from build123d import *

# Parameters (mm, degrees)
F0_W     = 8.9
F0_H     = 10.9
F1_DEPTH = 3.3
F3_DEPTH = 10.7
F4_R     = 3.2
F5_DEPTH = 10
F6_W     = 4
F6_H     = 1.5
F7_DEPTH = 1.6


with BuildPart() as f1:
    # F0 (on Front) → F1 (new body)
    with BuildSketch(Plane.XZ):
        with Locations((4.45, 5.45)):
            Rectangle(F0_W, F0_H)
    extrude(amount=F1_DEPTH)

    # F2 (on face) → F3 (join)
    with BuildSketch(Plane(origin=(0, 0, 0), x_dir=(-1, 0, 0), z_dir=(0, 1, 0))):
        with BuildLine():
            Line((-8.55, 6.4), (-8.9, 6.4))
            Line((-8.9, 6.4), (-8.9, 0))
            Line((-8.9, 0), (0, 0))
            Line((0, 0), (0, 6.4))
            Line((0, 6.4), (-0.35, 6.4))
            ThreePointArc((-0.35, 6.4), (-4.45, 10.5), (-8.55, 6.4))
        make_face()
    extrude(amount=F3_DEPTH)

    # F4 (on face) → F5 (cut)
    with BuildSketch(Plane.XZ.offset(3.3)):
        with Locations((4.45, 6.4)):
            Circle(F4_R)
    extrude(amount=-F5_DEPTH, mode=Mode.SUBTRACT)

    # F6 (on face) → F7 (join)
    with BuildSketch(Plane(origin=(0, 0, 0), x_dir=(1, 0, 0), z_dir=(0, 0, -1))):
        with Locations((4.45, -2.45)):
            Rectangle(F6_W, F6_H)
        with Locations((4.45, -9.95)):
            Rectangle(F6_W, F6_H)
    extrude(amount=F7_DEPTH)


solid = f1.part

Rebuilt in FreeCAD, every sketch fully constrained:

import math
import FreeCAD as App
import Part
import Sketcher

V = App.Vector


def add_polygon(sketch, points):
    """Adds a closed chain of lines whose ends are joined by coincident constraints."""
    first, n = sketch.GeometryCount, len(points)
    for a, b in zip(points, points[1:] + points[:1]):
        sketch.addGeometry(Part.LineSegment(App.Vector(*a, 0), App.Vector(*b, 0)), False)
    for i in range(n):
        sketch.addConstraint(Sketcher.Constraint("Coincident", first + i, 2, first + (i + 1) % n, 1))

doc = App.newDocument("Part")
body = doc.addObject("PartDesign::Body", "Body")

sketch1 = body.newObject("Sketcher::SketchObject", "Sketch")
sketch1.AttachmentSupport = (doc.getObject("XZ_Plane"), [""])
sketch1.MapMode = "FlatFace"
add_polygon(sketch1, [(0, 11), (0, 0), (9, 0), (9, 11)])
sketch1.addConstraint([
    Sketcher.Constraint("Vertical", 0),
    Sketcher.Constraint("Horizontal", 1),
    Sketcher.Constraint("Vertical", 2),
    Sketcher.Constraint("Horizontal", 3),
    Sketcher.Constraint("Coincident", 0, 2, -1, 1),
    Sketcher.Constraint("DistanceX", 1, 1, 1, 2, 8.9),
    Sketcher.Constraint("DistanceY", 0, 2, 0, 1, 10.9),
])
pad1 = body.newObject("PartDesign::Pad", "Pad")
pad1.Profile = sketch1
pad1.Length = 3.3

sketch2 = body.newObject("Sketcher::SketchObject", "Sketch001")
sketch2.AttachmentSupport = (doc.getObject("XZ_Plane"), [""])
sketch2.MapMode = "FlatFace"
sketch2.addGeometry([
    Part.LineSegment(V(8.55, 6.4, 0), V(8.9, 6.4, 0)),
    Part.LineSegment(V(8.9, 6.4, 0), V(8.9, 0, 0)),
    Part.LineSegment(V(8.9, 0, 0), V(0, 0, 0)),
    Part.LineSegment(V(0, 0, 0), V(0, 6.4, 0)),
    Part.LineSegment(V(0, 6.4, 0), V(0.35, 6.4, 0)),
    Part.ArcOfCircle(Part.Circle(V(4.45, 6.4, 0), V(0, 0, 1), 4.1), math.radians(0), math.radians(180)),
], False)
sketch2.addConstraint([
    Sketcher.Constraint("Coincident", 0, 2, 1, 1),
    Sketcher.Constraint("Coincident", 1, 2, 2, 1),
    Sketcher.Constraint("Coincident", 2, 2, 3, 1),
    Sketcher.Constraint("Coincident", 3, 2, 4, 1),
    Sketcher.Constraint("Coincident", 4, 2, 5, 2),
    Sketcher.Constraint("Coincident", 5, 1, 0, 1),
    Sketcher.Constraint("Horizontal", 0),
    Sketcher.Constraint("Vertical", 1),
    Sketcher.Constraint("Horizontal", 2),
    Sketcher.Constraint("Vertical", 3),
    Sketcher.Constraint("Horizontal", 4),
    Sketcher.Constraint("Coincident", 2, 2, -1, 1),
    Sketcher.Constraint("Horizontal", 5, 3, 0, 2),
    Sketcher.Constraint("Horizontal", 0, 2, 3, 2),
    Sketcher.Constraint("Equal", 0, 4),
    Sketcher.Constraint("Radius", 5, 4.1),
    Sketcher.Constraint("DistanceX", 2, 2, 2, 1, 8.9),
    Sketcher.Constraint("DistanceY", 1, 2, 1, 1, 6.4),
])
pad2 = body.newObject("PartDesign::Pad", "Pad001")
pad2.Profile = sketch2
pad2.Length = 10.7
pad2.Reversed = True

sketch3 = body.newObject("Sketcher::SketchObject", "Sketch002")
sketch3.AttachmentSupport = (doc.getObject("XZ_Plane"), [""])
sketch3.MapMode = "FlatFace"
sketch3.AttachmentOffset = App.Placement(V(0, 0, 3.3), App.Rotation())
sketch3.addGeometry(Part.Circle(V(4.5, 6.4, 0), V(0, 0, 1), 3.2), False)
sketch3.addConstraint([
    Sketcher.Constraint("Diameter", 0, 6.4),
    Sketcher.Constraint("DistanceY", -1, 1, 0, 3, 6.4),
    Sketcher.Constraint("DistanceX", -1, 1, 0, 3, 4.45),
])
pocket1 = body.newObject("PartDesign::Pocket", "Pocket")
pocket1.Profile = sketch3
pocket1.Length = 10

sketch4 = body.newObject("Sketcher::SketchObject", "Sketch003")
sketch4.AttachmentSupport = (doc.getObject("XY_Plane"), [""])
sketch4.MapMode = "FlatFace"
add_polygon(sketch4, [(2.5, 1.7), (2.5, 3.2), (6.5, 3.2), (6.5, 1.7)])
add_polygon(sketch4, [(2.5, 9.2), (2.5, 10.7), (6.5, 10.7), (6.5, 9.2)])
sketch4.addConstraint([
    Sketcher.Constraint("Vertical", 0),
    Sketcher.Constraint("Horizontal", 1),
    Sketcher.Constraint("Vertical", 2),
    Sketcher.Constraint("Horizontal", 3),
    Sketcher.Constraint("Vertical", 4),
    Sketcher.Constraint("Horizontal", 5),
    Sketcher.Constraint("Vertical", 6),
    Sketcher.Constraint("Horizontal", 7),
    Sketcher.Constraint("Vertical", 3, 2, 4, 2),
    Sketcher.Constraint("Vertical", 2, 2, 5, 2),
    Sketcher.Constraint("Equal", 2, 4),
    Sketcher.Constraint("DistanceX", 1, 1, 1, 2, 4.0),
    Sketcher.Constraint("DistanceY", 0, 1, 0, 2, 1.5),
    Sketcher.Constraint("DistanceY", 3, 2, 4, 2, 9.0),
    Sketcher.Constraint("DistanceY", -1, 1, 0, 2, 3.2),
    Sketcher.Constraint("DistanceX", -1, 1, 0, 2, 2.45),
])
pad3 = body.newObject("PartDesign::Pad", "Pad002")
pad3.Profile = sketch4
pad3.Length = 1.6
pad3.Reversed = True

doc.recompute()
